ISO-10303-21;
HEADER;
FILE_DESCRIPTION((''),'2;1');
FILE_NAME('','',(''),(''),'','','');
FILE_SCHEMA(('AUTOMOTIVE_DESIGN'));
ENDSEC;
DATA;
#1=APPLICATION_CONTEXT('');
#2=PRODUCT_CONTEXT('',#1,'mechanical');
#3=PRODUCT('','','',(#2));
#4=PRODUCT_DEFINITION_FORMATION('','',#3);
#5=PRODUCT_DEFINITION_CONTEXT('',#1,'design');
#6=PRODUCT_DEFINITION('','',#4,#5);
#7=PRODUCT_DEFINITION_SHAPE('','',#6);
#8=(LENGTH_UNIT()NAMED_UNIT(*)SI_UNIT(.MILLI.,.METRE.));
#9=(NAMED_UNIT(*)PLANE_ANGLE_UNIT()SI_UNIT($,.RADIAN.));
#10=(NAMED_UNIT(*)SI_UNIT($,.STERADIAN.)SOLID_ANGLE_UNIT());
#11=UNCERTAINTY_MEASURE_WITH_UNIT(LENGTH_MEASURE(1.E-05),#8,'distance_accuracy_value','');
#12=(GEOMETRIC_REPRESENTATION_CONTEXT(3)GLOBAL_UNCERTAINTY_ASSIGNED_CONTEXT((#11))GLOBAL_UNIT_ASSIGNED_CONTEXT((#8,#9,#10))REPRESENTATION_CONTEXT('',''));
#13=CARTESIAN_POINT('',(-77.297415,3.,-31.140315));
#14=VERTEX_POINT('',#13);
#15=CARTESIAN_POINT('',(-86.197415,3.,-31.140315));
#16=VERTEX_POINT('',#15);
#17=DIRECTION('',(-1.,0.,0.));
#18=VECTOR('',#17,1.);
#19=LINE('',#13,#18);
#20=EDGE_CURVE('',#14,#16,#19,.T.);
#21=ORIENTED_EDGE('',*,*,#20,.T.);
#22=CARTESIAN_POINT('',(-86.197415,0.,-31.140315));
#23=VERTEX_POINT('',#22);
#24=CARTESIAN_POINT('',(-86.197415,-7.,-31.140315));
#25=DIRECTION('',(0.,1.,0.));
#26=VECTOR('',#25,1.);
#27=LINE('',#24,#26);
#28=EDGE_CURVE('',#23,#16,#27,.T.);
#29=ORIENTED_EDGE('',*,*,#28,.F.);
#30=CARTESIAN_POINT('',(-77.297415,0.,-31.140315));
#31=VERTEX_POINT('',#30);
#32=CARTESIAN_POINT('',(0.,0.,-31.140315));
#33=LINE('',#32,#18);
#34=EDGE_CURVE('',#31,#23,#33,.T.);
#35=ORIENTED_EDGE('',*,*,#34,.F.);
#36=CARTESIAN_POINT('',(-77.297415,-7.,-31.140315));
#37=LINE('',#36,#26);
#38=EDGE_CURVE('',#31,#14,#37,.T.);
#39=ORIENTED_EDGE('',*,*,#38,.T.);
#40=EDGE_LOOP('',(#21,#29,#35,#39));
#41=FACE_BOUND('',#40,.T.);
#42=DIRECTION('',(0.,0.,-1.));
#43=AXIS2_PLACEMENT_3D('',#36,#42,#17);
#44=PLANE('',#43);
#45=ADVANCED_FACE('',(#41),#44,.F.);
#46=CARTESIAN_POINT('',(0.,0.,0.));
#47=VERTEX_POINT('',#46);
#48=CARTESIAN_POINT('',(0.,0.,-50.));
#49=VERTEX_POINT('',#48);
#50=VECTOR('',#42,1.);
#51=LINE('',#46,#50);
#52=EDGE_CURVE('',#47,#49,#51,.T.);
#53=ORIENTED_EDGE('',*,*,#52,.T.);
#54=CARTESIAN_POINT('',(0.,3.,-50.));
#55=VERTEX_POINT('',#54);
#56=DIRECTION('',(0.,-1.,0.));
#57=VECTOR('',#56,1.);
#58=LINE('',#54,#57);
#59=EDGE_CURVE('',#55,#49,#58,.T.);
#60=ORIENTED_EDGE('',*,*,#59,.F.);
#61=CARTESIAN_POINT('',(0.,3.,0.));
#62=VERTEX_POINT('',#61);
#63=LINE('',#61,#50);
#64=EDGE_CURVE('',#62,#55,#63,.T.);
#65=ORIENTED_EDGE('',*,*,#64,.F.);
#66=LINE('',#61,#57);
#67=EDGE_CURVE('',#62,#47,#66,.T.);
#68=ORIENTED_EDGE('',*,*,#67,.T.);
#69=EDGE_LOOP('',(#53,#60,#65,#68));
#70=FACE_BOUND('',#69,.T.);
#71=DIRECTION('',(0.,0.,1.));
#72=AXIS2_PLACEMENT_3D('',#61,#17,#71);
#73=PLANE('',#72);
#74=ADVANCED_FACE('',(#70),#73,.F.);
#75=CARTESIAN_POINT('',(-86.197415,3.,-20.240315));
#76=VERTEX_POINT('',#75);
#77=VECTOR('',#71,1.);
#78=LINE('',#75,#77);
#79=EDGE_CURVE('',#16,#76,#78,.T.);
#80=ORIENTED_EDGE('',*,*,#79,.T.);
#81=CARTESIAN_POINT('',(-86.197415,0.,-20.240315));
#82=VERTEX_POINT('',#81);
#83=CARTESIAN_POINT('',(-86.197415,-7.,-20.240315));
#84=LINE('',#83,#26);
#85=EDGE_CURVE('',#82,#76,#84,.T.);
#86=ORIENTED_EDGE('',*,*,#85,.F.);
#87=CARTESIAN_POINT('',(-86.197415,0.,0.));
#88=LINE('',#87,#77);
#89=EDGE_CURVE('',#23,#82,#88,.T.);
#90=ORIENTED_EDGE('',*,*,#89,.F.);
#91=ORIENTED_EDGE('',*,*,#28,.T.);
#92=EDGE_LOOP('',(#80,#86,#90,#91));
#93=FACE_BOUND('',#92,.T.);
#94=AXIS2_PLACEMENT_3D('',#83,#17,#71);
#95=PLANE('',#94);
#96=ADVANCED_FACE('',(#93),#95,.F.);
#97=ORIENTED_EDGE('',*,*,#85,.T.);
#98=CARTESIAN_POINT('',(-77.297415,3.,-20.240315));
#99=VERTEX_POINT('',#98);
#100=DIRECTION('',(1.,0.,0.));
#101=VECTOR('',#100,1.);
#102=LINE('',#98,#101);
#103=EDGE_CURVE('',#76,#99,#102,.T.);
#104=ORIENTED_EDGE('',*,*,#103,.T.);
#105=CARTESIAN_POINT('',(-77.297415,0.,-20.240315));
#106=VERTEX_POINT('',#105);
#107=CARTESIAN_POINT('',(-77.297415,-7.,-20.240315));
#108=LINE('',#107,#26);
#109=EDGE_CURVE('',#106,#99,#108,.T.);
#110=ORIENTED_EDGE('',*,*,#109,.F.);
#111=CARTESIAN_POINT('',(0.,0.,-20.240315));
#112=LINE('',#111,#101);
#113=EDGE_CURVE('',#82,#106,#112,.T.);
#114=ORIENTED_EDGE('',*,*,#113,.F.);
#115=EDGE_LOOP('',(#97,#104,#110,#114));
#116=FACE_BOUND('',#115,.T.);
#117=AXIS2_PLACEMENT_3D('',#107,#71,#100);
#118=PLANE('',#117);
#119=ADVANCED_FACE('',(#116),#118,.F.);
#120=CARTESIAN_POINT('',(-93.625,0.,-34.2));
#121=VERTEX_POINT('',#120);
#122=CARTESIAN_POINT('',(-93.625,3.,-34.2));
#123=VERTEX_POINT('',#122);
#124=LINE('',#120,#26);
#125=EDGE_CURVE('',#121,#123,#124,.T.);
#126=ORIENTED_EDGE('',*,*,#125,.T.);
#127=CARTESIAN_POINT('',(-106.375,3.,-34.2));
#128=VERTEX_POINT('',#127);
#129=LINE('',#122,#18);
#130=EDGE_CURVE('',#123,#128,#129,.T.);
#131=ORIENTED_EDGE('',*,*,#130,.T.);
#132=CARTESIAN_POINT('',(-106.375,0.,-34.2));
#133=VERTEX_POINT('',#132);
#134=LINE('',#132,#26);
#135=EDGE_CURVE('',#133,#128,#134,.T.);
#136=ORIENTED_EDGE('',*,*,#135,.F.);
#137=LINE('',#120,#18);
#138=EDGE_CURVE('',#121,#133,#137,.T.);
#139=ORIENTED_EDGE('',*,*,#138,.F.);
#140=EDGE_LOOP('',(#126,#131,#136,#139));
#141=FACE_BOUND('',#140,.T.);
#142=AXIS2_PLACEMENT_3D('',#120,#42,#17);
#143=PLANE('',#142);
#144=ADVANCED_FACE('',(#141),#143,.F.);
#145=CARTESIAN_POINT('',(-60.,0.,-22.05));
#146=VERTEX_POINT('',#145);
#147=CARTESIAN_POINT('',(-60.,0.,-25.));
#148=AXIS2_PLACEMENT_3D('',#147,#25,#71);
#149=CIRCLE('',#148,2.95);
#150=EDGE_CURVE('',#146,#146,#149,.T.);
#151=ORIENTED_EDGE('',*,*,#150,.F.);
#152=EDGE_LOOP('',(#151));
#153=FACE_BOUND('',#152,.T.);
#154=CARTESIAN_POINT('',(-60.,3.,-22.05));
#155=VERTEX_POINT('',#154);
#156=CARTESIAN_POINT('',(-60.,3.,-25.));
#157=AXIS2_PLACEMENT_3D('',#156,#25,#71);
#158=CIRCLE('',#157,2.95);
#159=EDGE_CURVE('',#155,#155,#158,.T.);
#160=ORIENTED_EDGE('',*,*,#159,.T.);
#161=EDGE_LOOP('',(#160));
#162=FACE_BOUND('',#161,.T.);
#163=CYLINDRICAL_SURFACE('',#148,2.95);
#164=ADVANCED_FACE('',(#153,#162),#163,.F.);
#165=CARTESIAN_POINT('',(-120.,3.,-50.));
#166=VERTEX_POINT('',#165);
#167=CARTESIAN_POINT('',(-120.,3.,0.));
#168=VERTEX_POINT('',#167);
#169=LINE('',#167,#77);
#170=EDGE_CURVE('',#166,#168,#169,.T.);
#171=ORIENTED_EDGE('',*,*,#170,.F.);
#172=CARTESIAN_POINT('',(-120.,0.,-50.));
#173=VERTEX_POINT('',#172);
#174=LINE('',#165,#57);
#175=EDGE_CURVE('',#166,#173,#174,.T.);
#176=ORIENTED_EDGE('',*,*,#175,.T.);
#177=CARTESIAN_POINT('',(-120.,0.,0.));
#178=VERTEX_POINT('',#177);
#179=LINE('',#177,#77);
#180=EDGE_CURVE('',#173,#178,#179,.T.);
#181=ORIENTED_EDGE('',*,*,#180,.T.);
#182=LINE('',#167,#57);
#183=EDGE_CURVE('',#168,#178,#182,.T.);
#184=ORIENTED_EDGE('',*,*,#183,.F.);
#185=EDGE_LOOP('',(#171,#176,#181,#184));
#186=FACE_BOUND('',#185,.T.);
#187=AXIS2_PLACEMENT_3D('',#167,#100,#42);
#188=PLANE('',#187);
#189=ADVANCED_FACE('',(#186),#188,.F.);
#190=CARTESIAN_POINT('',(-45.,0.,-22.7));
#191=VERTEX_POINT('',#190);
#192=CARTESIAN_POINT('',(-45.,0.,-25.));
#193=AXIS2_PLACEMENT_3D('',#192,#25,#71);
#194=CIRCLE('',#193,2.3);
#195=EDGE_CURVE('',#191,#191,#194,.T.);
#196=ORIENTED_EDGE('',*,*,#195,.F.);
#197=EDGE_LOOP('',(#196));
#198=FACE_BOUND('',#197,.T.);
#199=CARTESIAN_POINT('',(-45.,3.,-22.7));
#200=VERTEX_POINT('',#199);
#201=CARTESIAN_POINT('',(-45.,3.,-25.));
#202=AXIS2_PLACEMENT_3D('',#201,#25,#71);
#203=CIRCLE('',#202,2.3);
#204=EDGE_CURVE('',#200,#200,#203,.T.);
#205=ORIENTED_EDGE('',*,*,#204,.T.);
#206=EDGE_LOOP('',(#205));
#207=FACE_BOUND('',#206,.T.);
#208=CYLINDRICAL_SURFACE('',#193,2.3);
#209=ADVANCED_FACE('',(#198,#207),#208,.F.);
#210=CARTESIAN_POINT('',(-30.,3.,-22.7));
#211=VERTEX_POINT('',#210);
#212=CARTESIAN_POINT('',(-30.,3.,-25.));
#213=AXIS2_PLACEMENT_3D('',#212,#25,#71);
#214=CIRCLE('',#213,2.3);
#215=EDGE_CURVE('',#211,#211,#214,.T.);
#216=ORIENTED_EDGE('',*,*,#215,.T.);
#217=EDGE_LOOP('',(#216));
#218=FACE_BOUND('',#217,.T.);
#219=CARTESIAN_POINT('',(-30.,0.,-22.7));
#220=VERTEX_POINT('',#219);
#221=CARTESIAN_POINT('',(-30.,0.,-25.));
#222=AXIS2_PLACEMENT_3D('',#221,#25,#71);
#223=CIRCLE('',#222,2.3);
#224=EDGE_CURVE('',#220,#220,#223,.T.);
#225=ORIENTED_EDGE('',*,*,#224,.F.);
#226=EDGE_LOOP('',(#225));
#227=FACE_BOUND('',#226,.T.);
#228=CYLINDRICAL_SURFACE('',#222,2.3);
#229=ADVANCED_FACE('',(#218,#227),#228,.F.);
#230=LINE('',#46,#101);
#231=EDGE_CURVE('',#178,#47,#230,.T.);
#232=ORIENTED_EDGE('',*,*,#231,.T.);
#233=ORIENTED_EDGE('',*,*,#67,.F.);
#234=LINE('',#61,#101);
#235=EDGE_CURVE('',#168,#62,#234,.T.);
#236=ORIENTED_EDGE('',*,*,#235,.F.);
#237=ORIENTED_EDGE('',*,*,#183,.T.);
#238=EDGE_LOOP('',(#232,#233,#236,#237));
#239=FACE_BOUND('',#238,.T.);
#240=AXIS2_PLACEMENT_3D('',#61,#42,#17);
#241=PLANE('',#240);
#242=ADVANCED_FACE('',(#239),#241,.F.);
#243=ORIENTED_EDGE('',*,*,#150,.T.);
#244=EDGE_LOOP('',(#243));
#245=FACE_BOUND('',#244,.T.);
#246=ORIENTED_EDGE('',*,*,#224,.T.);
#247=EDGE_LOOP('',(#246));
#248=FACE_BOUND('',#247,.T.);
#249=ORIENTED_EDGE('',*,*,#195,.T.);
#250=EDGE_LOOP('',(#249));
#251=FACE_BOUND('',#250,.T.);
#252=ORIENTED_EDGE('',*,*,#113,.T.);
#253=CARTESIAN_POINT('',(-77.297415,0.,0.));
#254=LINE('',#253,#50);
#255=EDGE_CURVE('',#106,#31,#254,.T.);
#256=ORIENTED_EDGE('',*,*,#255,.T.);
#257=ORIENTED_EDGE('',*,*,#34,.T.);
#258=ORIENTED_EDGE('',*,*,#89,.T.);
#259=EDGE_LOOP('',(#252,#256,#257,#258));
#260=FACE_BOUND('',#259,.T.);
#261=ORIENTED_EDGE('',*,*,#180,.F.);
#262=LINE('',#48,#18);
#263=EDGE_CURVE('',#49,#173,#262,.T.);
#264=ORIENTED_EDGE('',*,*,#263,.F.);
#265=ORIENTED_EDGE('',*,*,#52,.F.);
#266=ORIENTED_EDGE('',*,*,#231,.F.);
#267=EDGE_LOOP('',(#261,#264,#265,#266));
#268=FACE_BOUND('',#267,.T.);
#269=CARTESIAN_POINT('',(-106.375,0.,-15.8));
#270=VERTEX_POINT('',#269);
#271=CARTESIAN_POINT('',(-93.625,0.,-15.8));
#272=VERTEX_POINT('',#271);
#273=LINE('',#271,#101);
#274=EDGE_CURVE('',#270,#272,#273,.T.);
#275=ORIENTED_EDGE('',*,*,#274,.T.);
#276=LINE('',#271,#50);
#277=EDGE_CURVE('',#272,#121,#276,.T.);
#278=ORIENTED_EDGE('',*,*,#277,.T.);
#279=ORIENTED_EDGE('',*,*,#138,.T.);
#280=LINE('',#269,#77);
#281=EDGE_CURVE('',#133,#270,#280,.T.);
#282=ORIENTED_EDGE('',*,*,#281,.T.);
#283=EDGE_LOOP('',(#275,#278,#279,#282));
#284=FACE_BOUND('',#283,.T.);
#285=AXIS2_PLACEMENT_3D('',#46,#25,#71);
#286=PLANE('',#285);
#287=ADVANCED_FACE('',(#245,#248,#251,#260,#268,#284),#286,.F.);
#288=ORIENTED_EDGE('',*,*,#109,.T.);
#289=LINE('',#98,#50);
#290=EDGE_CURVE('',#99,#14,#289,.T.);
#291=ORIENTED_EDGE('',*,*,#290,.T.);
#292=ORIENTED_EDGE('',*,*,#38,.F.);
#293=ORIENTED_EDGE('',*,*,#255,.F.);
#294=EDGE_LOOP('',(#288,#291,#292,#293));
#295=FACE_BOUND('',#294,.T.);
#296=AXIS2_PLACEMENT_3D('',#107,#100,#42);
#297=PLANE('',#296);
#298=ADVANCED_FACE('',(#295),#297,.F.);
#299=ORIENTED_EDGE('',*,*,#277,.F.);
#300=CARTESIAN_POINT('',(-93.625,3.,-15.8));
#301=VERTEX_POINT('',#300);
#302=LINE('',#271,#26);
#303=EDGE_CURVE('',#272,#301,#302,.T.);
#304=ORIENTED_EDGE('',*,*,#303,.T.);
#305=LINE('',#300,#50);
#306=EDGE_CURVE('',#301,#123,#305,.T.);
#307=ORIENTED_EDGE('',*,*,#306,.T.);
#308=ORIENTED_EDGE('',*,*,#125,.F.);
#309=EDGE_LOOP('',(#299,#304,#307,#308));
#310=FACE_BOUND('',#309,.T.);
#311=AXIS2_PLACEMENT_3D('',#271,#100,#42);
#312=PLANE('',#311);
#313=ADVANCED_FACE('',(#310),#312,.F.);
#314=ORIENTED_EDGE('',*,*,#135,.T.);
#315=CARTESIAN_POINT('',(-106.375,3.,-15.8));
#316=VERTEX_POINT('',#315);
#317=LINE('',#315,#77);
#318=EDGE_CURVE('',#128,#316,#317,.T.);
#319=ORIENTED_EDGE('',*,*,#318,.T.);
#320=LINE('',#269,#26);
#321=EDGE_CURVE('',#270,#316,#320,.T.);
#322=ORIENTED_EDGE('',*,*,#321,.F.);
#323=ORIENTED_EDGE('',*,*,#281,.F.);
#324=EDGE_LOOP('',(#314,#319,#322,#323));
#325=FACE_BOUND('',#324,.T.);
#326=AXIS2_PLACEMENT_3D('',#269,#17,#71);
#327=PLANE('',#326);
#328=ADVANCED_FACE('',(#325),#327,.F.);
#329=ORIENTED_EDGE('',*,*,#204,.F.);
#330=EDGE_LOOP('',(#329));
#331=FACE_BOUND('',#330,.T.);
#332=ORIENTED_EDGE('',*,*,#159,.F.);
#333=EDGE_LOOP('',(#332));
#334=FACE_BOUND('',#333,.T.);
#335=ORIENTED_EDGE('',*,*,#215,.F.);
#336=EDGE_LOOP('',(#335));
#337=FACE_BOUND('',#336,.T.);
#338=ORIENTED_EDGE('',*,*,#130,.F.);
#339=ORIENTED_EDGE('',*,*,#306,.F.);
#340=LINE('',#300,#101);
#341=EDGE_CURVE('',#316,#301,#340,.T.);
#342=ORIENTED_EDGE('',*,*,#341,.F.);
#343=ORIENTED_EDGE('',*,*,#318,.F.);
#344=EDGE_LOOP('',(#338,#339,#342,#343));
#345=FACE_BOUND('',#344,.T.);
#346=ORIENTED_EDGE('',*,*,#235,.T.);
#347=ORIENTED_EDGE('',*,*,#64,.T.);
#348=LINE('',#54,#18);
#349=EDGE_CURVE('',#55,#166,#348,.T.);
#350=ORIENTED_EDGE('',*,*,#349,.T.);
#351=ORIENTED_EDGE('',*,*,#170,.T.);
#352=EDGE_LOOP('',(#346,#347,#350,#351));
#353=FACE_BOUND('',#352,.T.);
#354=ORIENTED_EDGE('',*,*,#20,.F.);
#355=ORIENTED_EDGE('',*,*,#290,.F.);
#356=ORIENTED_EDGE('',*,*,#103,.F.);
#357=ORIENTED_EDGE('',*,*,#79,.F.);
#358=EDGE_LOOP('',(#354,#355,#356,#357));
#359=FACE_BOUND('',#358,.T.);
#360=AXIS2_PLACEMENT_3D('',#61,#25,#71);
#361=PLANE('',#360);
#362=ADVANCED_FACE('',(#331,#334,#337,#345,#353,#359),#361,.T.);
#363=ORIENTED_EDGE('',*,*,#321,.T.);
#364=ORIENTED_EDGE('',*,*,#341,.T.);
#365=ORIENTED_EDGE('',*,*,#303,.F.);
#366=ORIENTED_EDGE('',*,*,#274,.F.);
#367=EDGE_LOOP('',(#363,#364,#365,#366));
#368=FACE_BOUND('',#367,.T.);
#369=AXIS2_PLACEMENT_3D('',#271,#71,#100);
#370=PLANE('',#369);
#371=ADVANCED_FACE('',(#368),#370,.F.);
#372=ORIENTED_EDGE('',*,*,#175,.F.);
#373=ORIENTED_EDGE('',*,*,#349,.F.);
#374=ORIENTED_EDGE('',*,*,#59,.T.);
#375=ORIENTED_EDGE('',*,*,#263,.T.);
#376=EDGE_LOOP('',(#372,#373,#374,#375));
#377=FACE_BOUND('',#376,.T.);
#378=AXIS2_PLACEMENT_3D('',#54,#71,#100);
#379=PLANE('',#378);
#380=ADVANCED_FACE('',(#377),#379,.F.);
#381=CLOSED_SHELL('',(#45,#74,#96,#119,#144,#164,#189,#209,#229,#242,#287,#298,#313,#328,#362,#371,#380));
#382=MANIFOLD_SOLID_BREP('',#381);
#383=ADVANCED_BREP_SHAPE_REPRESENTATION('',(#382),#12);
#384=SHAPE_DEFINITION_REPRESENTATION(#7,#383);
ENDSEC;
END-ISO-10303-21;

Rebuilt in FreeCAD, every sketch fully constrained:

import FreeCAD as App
import Part
import Sketcher
from FreeCAD import Vector


def add_polygon(sketch, points):
    """Adds a closed chain of lines whose ends are joined by coincident constraints."""
    first, n = sketch.GeometryCount, len(points)
    for a, b in zip(points, points[1:] + points[:1]):
        sketch.addGeometry(Part.LineSegment(App.Vector(*a, 0), App.Vector(*b, 0)), False)
    for i in range(n):
        sketch.addConstraint(Sketcher.Constraint("Coincident", first + i, 2, first + (i + 1) % n, 1))

doc = App.newDocument("Part")
body = doc.addObject("PartDesign::Body", "Body")

# Sketch on XZ plane
sketch1 = body.newObject("Sketcher::SketchObject", "Sketch")
sketch1.AttachmentSupport = (doc.getObject("XZ_Plane"), [""])
sketch1.MapMode = "FlatFace"
add_polygon(sketch1, [(-120, -50), (-120, 0), (0, 0), (0, -50)])  # lines 0-3
sketch1.addConstraint(Sketcher.Constraint("Vertical", 0))
sketch1.addConstraint(Sketcher.Constraint("Horizontal", 1))
sketch1.addConstraint(Sketcher.Constraint("Vertical", 2))
sketch1.addConstraint(Sketcher.Constraint("Horizontal", 3))
sketch1.addConstraint(Sketcher.Constraint("Coincident", 1, 2, -1, 1))
sketch1.addConstraint(Sketcher.Constraint("DistanceX", 1, 1, 1, 2, 120.0))
sketch1.addConstraint(Sketcher.Constraint("DistanceY", 0, 1, 0, 2, 50.0))
pad1 = body.newObject("PartDesign::Pad", "Pad")
pad1.Profile = sketch1
pad1.Length = 3
pad1.Reversed = True

# Sketch on XZ plane
sketch2 = body.newObject("Sketcher::SketchObject", "Sketch001")
sketch2.AttachmentSupport = (doc.getObject("XZ_Plane"), [""])
sketch2.MapMode = "FlatFace"
sketch2.AttachmentOffset = App.Placement(Vector(0, 0, -3), App.Rotation())
sketch2.addGeometry(Part.Circle(Vector(-60, -25, 0), Vector(0, 0, 1), 3), False)  # 0
sketch2.addGeometry(Part.Circle(Vector(-45, -25, 0), Vector(0, 0, 1), 2.3), False)  # 1
sketch2.addGeometry(Part.Circle(Vector(-30, -25, 0), Vector(0, 0, 1), 2.3), False)  # 2
add_polygon(sketch2, [(-106.4, -34.2), (-106.4, -15.8), (-93.6, -15.8), (-93.6, -34.2)])  # lines 3-6
sketch2.addConstraint(Sketcher.Constraint("Vertical", 3))
sketch2.addConstraint(Sketcher.Constraint("Horizontal", 4))
sketch2.addConstraint(Sketcher.Constraint("Vertical", 5))
sketch2.addConstraint(Sketcher.Constraint("Horizontal", 6))
sketch2.addConstraint(Sketcher.Constraint("Equal", 1, 2))
sketch2.addConstraint(Sketcher.Constraint("Horizontal", 0, 3, 1, 3))
sketch2.addConstraint(Sketcher.Constraint("Horizontal", 1, 3, 2, 3))
sketch2.addConstraint(Sketcher.Constraint("Diameter", 0, 5.9))
sketch2.addConstraint(Sketcher.Constraint("Diameter", 1, 4.6))
sketch2.addConstraint(Sketcher.Constraint("DistanceY", 3, 1, 3, 2, 18.4))
sketch2.addConstraint(Sketcher.Constraint("DistanceX", 0, 3, -1, 1, 60.0))
sketch2.addConstraint(Sketcher.Constraint("DistanceY", 0, 3, -1, 1, 25.0))
sketch2.addConstraint(Sketcher.Constraint("DistanceX", 1, 3, -1, 1, 45.0))
sketch2.addConstraint(Sketcher.Constraint("DistanceX", 2, 3, -1, 1, 30.0))
sketch2.addConstraint(Sketcher.Constraint("DistanceX", 4, 1, 4, 2, 12.75))
sketch2.addConstraint(Sketcher.Constraint("DistanceY", 3, 2, -1, 1, 15.8))
sketch2.addConstraint(Sketcher.Constraint("DistanceX", 3, 2, -1, 1, 106.375))
pocket1 = body.newObject("PartDesign::Pocket", "Pocket")
pocket1.Profile = sketch2
pocket1.Length = 3
pocket1.Reversed = True

# Sketch on XZ plane
sketch3 = body.newObject("Sketcher::SketchObject", "Sketch002")
sketch3.AttachmentSupport = (doc.getObject("XZ_Plane"), [""])
sketch3.MapMode = "FlatFace"
sketch3.AttachmentOffset = App.Placement(Vector(0, 0, -3), App.Rotation())
add_polygon(sketch3, [(-86, -31), (-86, -20), (-77, -20), (-77, -31)])  # lines 0-3
sketch3.addConstraint(Sketcher.Constraint("Vertical", 0))
sketch3.addConstraint(Sketcher.Constraint("Horizontal", 1))
sketch3.addConstraint(Sketcher.Constraint("Vertical", 2))
sketch3.addConstraint(Sketcher.Constraint("Horizontal", 3))
sketch3.addConstraint(Sketcher.Constraint("DistanceX", 1, 1, 1, 2, 8.9))
sketch3.addConstraint(Sketcher.Constraint("DistanceY", 0, 1, 0, 2, 10.9))
sketch3.addConstraint(Sketcher.Constraint("DistanceX", 0, 2, -1, 1, 86.197415))
sketch3.addConstraint(Sketcher.Constraint("DistanceY", 0, 2, -1, 1, 20.240315))
pocket2 = body.newObject("PartDesign::Pocket", "Pocket001")
pocket2.Profile = sketch3
pocket2.Length = 10
pocket2.Reversed = True

doc.recompute()
